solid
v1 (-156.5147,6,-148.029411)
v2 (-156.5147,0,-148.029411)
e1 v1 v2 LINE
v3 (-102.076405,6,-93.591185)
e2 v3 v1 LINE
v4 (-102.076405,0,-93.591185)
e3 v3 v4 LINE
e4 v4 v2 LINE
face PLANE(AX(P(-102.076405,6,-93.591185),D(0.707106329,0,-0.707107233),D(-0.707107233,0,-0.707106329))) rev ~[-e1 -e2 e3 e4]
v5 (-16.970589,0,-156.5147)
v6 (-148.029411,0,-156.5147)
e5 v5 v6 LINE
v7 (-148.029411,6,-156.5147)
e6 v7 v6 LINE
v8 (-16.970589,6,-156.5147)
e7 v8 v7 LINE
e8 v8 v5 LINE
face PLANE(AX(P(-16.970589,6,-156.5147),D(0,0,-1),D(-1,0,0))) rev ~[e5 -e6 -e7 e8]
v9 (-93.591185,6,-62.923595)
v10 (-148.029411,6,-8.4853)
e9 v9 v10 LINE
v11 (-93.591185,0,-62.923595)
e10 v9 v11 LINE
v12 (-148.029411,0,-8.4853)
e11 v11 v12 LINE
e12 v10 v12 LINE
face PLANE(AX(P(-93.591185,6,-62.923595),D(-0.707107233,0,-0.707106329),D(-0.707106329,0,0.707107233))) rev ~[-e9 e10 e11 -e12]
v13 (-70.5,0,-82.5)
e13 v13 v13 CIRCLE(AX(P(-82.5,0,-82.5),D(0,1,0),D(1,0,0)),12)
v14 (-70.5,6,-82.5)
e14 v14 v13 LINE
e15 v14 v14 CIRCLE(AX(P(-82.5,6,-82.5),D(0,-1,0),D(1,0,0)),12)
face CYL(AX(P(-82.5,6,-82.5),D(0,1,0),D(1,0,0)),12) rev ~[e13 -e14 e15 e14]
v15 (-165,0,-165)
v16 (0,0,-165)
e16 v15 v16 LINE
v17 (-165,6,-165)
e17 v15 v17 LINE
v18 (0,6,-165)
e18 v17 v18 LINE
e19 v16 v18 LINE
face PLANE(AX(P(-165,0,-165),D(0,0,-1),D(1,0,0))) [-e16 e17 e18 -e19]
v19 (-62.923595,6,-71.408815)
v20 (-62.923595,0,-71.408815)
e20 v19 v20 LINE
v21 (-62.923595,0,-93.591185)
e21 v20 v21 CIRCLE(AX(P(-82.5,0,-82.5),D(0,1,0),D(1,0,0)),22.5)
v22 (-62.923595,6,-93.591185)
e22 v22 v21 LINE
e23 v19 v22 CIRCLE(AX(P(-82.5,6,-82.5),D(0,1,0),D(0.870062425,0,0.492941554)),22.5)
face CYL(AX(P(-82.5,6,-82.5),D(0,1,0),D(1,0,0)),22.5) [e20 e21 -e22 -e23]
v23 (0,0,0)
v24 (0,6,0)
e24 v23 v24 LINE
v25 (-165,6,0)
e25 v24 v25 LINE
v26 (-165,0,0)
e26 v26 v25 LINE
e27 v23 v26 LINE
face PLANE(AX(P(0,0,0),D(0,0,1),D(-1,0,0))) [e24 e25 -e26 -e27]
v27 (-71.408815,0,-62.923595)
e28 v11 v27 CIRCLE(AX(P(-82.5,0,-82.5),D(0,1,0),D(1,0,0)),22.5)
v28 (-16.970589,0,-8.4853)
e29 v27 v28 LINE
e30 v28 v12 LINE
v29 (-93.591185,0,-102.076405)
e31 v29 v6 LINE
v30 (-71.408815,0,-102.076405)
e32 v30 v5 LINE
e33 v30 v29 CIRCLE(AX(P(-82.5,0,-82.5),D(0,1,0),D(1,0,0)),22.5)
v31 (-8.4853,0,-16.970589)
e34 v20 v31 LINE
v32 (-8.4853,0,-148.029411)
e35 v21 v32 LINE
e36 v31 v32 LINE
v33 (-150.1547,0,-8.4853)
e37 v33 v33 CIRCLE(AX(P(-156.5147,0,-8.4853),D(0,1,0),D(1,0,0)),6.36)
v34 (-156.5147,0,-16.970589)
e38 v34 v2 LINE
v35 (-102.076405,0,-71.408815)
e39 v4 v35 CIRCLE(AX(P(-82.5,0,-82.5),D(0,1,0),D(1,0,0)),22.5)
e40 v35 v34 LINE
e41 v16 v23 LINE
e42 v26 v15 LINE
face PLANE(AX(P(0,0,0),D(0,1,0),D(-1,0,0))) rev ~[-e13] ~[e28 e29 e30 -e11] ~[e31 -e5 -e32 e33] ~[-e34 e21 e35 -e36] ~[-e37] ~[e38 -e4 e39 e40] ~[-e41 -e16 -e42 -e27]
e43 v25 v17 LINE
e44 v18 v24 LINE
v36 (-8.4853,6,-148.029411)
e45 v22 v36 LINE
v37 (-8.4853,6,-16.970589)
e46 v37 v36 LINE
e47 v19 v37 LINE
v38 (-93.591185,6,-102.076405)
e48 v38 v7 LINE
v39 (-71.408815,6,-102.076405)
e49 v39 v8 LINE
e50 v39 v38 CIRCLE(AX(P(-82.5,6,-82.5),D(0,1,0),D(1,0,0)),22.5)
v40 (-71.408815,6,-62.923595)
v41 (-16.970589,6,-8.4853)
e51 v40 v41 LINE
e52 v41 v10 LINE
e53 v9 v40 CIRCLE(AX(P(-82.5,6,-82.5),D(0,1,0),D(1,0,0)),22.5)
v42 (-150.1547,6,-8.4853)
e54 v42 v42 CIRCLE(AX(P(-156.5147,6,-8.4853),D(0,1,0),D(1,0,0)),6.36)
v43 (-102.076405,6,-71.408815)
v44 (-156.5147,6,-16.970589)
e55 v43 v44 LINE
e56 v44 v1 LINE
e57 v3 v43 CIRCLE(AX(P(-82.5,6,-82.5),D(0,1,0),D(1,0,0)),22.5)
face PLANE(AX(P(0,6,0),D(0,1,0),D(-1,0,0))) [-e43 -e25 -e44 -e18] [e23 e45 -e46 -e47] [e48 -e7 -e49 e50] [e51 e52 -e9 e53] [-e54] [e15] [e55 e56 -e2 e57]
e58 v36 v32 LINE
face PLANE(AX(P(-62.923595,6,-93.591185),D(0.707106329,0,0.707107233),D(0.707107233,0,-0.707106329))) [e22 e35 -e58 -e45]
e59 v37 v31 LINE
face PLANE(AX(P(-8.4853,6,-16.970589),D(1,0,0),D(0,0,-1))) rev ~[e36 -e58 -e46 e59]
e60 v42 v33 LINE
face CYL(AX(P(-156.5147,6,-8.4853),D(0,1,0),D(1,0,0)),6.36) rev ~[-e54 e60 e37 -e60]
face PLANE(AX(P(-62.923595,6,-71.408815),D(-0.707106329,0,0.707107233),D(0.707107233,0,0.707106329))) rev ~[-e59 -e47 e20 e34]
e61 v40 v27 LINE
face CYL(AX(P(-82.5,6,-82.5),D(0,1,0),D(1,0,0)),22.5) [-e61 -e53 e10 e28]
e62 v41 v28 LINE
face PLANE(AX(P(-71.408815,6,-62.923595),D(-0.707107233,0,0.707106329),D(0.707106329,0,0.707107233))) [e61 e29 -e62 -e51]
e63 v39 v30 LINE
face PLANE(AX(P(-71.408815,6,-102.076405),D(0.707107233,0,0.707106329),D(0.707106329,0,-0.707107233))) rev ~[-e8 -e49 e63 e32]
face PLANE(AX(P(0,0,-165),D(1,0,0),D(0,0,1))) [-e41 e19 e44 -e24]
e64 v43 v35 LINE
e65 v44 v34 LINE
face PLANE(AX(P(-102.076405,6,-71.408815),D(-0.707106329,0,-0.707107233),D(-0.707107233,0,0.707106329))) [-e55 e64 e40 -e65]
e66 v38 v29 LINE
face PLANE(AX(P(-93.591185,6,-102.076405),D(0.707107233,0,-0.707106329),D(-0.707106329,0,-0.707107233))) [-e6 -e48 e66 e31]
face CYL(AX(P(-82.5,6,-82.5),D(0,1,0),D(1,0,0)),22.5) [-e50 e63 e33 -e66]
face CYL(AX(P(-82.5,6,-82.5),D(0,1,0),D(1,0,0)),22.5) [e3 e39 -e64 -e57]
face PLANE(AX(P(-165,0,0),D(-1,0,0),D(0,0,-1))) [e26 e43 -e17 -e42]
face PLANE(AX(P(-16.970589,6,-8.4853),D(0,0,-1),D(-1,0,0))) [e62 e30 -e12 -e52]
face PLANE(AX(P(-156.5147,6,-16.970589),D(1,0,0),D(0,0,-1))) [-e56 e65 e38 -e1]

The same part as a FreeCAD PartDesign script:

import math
import FreeCAD as App
import Part
import Sketcher
from FreeCAD import Vector


def add_polygon(sketch, points):
    """Adds a closed chain of lines whose ends are joined by coincident constraints."""
    first, n = sketch.GeometryCount, len(points)
    for a, b in zip(points, points[1:] + points[:1]):
        sketch.addGeometry(Part.LineSegment(App.Vector(*a, 0), App.Vector(*b, 0)), False)
    for i in range(n):
        sketch.addConstraint(Sketcher.Constraint("Coincident", first + i, 2, first + (i + 1) % n, 1))

doc = App.newDocument("Part")
body = doc.addObject("PartDesign::Body", "Body")

# Sketch on XZ plane
sketch1 = body.newObject("Sketcher::SketchObject", "Sketch")
sketch1.AttachmentSupport = (doc.getObject("XZ_Plane"), [""])
sketch1.MapMode = "FlatFace"
add_polygon(sketch1, [(-165, 0), (0, 0), (0, -165), (-165, -165)])  # lines 0-3
sketch1.addConstraint(Sketcher.Constraint("Horizontal", 0))
sketch1.addConstraint(Sketcher.Constraint("Vertical", 1))
sketch1.addConstraint(Sketcher.Constraint("Horizontal", 2))
sketch1.addConstraint(Sketcher.Constraint("Vertical", 3))
sketch1.addConstraint(Sketcher.Constraint("Coincident", 0, 2, -1, 1))
sketch1.addConstraint(Sketcher.Constraint("Equal", 2, 1))
sketch1.addConstraint(Sketcher.Constraint("DistanceX", 0, 1, 0, 2, 165.0))
pad1 = body.newObject("PartDesign::Pad", "Pad")
pad1.Profile = sketch1
pad1.Length = 6
pad1.Reversed = True

# Sketch on XZ plane
sketch2 = body.newObject("Sketcher::SketchObject", "Sketch001")
sketch2.AttachmentSupport = (doc.getObject("XZ_Plane"), [""])
sketch2.MapMode = "FlatFace"
sketch2.AttachmentOffset = App.Placement(Vector(0, 0, -6), App.Rotation())
sketch2.addGeometry(Part.Circle(Vector(-82.5, -82.5, 0), Vector(0, 0, 1), 12), False)
sketch2.addConstraint(Sketcher.Constraint("Diameter", 0, 24.0))
sketch2.addConstraint(Sketcher.Constraint("DistanceX", 0, 3, -1, 1, 82.5))
sketch2.addConstraint(Sketcher.Constraint("DistanceY", 0, 3, -1, 1, 82.5))
pocket1 = body.newObject("PartDesign::Pocket", "Pocket")
pocket1.Profile = sketch2
pocket1.Type = "ThroughAll"
pocket1.Reversed = True

# Sketch on XZ plane
sketch3 = body.newObject("Sketcher::SketchObject", "Sketch002")
sketch3.AttachmentSupport = (doc.getObject("XZ_Plane"), [""])
sketch3.MapMode = "FlatFace"
sketch3.AttachmentOffset = App.Placement(Vector(0, 0, -6), App.Rotation())
sketch3.addGeometry(Part.LineSegment(Vector(-102.076405, -93.591185, 0), Vector(-156.5147, -148.029411, 0)), False)
sketch3.addGeometry(Part.LineSegment(Vector(-156.5147, -148.029411, 0), Vector(-156.5147, -16.970589, 0)), False)
sketch3.addGeometry(Part.LineSegment(Vector(-156.5147, -16.970589, 0), Vector(-102.076405, -71.408815, 0)), False)
sketch3.addGeometry(Part.ArcOfCircle(Part.Circle(Vector(-82.5, -82.5, 0), Vector(0, 0, 1), 22.5), math.radians(150.465895), math.radians(209.534105)), False)
sketch3.addGeometry(Part.LineSegment(Vector(-16.970589, -156.5147, 0), Vector(-148.029411, -156.5147, 0)), False)
sketch3.addGeometry(Part.LineSegment(Vector(-148.029411, -156.5147, 0), Vector(-93.591185, -102.076405, 0)), False)
sketch3.addGeometry(Part.ArcOfCircle(Part.Circle(Vector(-82.5, -82.5, 0), Vector(0, 0, 1), 22.5), math.radians(-119.534105), math.radians(-60.465895)), False)
sketch3.addGeometry(Part.LineSegment(Vector(-71.408815, -102.076405, 0), Vector(-16.970589, -156.5147, 0)), False)
sketch3.addGeometry(Part.LineSegment(Vector(-93.591185, -62.923595, 0), Vector(-148.029411, -8.4853, 0)), False)
sketch3.addGeometry(Part.LineSegment(Vector(-148.029411, -8.4853, 0), Vector(-16.970589, -8.4853, 0)), False)
sketch3.addGeometry(Part.LineSegment(Vector(-16.970589, -8.4853, 0), Vector(-71.408815, -62.923595, 0)), False)
sketch3.addGeometry(Part.ArcOfCircle(Part.Circle(Vector(-82.5, -82.5, 0), Vector(0, 0, 1), 22.5), math.radians(60.465895), math.radians(119.534105)), False)
sketch3.addGeometry(Part.LineSegment(Vector(-8.4853, -16.970589, 0), Vector(-8.4853, -148.029411, 0)), False)
sketch3.addGeometry(Part.LineSegment(Vector(-8.4853, -148.029411, 0), Vector(-62.923595, -93.591185, 0)), False)
sketch3.addGeometry(Part.ArcOfCircle(Part.Circle(Vector(-82.5, -82.5, 0), Vector(0, 0, 1), 22.5), math.radians(-29.534105), math.radians(29.534105)), False)
sketch3.addGeometry(Part.LineSegment(Vector(-62.923595, -71.408815, 0), Vector(-8.4853, -16.970589, 0)), False)
sketch3.addConstraint(Sketcher.Constraint("Coincident", 0, 2, 1, 1))
sketch3.addConstraint(Sketcher.Constraint("Coincident", 1, 2, 2, 1))
sketch3.addConstraint(Sketcher.Constraint("Coincident", 2, 2, 3, 1))
sketch3.addConstraint(Sketcher.Constraint("Coincident", 3, 2, 0, 1))
sketch3.addConstraint(Sketcher.Constraint("Coincident", 4, 2, 5, 1))
sketch3.addConstraint(Sketcher.Constraint("Coincident", 5, 2, 6, 1))
sketch3.addConstraint(Sketcher.Constraint("Coincident", 6, 2, 7, 1))
sketch3.addConstraint(Sketcher.Constraint("Coincident", 7, 2, 4, 1))
sketch3.addConstraint(Sketcher.Constraint("Coincident", 8, 2, 9, 1))
sketch3.addConstraint(Sketcher.Constraint("Coincident", 9, 2, 10, 1))
sketch3.addConstraint(Sketcher.Constraint("Coincident", 10, 2, 11, 1))
sketch3.addConstraint(Sketcher.Constraint("Coincident", 11, 2, 8, 1))
sketch3.addConstraint(Sketcher.Constraint("Coincident", 12, 2, 13, 1))
sketch3.addConstraint(Sketcher.Constraint("Coincident", 13, 2, 14, 1))
sketch3.addConstraint(Sketcher.Constraint("Coincident", 14, 2, 15, 1))
sketch3.addConstraint(Sketcher.Constraint("Coincident", 15, 2, 12, 1))
sketch3.addConstraint(Sketcher.Constraint("Vertical", 1))
sketch3.addConstraint(Sketcher.Constraint("Horizontal", 4))
sketch3.addConstraint(Sketcher.Constraint("Horizontal", 9))
sketch3.addConstraint(Sketcher.Constraint("Vertical", 12))
sketch3.addConstraint(Sketcher.Constraint("Coincident", 6, 3, 3, 3))
sketch3.addConstraint(Sketcher.Constraint("Coincident", 11, 3, 3, 3))
sketch3.addConstraint(Sketcher.Constraint("Coincident", 14, 3, 3, 3))
sketch3.addConstraint(Sketcher.Constraint("Equal", 3, 6))
sketch3.addConstraint(Sketcher.Constraint("Equal", 6, 11))
sketch3.addConstraint(Sketcher.Constraint("Equal", 11, 14))
sketch3.addConstraint(Sketcher.Constraint("Perpendicular", 0, 2))
sketch3.addConstraint(Sketcher.Constraint("Perpendicular", 2, 5))
sketch3.addConstraint(Sketcher.Constraint("Perpendicular", 5, 7))
sketch3.addConstraint(Sketcher.Constraint("Parallel", 7, 8))
sketch3.addConstraint(Sketcher.Constraint("Perpendicular", 8, 10))
sketch3.addConstraint(Sketcher.Constraint("Perpendicular", 10, 13))
sketch3.addConstraint(Sketcher.Constraint("Perpendicular", 13, 15))
sketch3.addConstraint(Sketcher.Constraint("Horizontal", 5, 2, 6, 2))
sketch3.addConstraint(Sketcher.Constraint("Horizontal", 10, 2, 11, 2))
sketch3.addConstraint(Sketcher.Constraint("Horizontal", 0, 2, 12, 2))
sketch3.addConstraint(Sketcher.Constraint("Horizontal", 3, 2, 13, 2))
sketch3.addConstraint(Sketcher.Constraint("Horizontal", 2, 2, 14, 2))
sketch3.addConstraint(Sketcher.Constraint("Horizontal", 1, 2, 15, 2))
sketch3.addConstraint(Sketcher.Constraint("Vertical", 2, 2, 3, 2))
sketch3.addConstraint(Sketcher.Constraint("Vertical", 4, 2, 8, 2))
sketch3.addConstraint(Sketcher.Constraint("Vertical", 6, 2, 10, 2))
sketch3.addConstraint(Sketcher.Constraint("Equal", 9, 1))
sketch3.addConstraint(Sketcher.Constraint("Equal", 2, 5))
sketch3.addConstraint(Sketcher.Constraint("Radius", 3, 22.5))
sketch3.addConstraint(Sketcher.Constraint("DistanceX", 3, 3, -1, 1, 82.5))
sketch3.addConstraint(Sketcher.Constraint("DistanceY", 3, 3, -1, 1, 82.5))
sketch3.addConstraint(Sketcher.Constraint("DistanceX", 4, 2, 4, 1, 131.0588))
sketch3.addConstraint(Sketcher.Constraint("DistanceX", 4, 2, 3, 2, 45.953))
pocket2 = body.newObject("PartDesign::Pocket", "Pocket001")
pocket2.Profile = sketch3
pocket2.Type = "ThroughAll"
pocket2.Reversed = True

# Sketch on XZ plane
sketch4 = body.newObject("Sketcher::SketchObject", "Sketch003")
sketch4.AttachmentSupport = (doc.getObject("XZ_Plane"), [""])
sketch4.MapMode = "FlatFace"
sketch4.AttachmentOffset = App.Placement(Vector(0, 0, -6), App.Rotation())
sketch4.addGeometry(Part.Circle(Vector(-156.5147, -8.4853, 0), Vector(0, 0, 1), 6.36), False)
sketch4.addConstraint(Sketcher.Constraint("Diameter", 0, 12.72))
sketch4.addConstraint(Sketcher.Constraint("DistanceX", 0, 3, -1, 1, 156.5147))
sketch4.addConstraint(Sketcher.Constraint("DistanceY", 0, 3, -1, 1, 8.4853))
pocket3 = body.newObject("PartDesign::Pocket", "Pocket002")
pocket3.Profile = sketch4
pocket3.Type = "ThroughAll"
pocket3.Reversed = True

doc.recompute()
